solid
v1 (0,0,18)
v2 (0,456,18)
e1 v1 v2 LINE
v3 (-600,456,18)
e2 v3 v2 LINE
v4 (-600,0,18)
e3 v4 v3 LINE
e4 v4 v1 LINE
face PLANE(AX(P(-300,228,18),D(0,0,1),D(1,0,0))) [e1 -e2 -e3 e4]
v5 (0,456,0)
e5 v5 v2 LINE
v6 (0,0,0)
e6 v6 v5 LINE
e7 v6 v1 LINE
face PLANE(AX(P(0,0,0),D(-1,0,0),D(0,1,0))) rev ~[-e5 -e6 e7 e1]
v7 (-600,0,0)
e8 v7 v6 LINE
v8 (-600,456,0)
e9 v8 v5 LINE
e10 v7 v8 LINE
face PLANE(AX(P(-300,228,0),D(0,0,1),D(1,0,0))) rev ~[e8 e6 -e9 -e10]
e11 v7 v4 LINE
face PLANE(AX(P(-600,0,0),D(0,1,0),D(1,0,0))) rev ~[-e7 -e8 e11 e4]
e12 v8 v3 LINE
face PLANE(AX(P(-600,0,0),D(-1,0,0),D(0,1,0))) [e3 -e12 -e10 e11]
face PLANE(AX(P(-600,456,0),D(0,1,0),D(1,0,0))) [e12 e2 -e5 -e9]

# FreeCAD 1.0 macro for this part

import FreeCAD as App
import Part
import Sketcher
from FreeCAD import Vector
Q = App.Units.Quantity

doc = App.newDocument("Part")
body = doc.addObject("PartDesign::Body", "Body")

sketch1 = body.newObject("Sketcher::SketchObject", "Sketch")
sketch1.AttachmentSupport = (doc.getObject("XY_Plane"), [""])
sketch1.MapMode = "FlatFace"
sketch1.addGeometry([
    Part.LineSegment(Vector(-600, 456, 0), Vector(-600, 0, 0)),
    Part.LineSegment(Vector(-600, 0, 0), Vector(0, 0, 0)),
    Part.LineSegment(Vector(0, 0, 0), Vector(0, 456, 0)),
    Part.LineSegment(Vector(0, 456, 0), Vector(-600, 456, 0)),
], False)
sketch1.addConstraint([
    Sketcher.Constraint("Coincident", 0, 2, 1, 1),
    Sketcher.Constraint("Coincident", 1, 2, 2, 1),
    Sketcher.Constraint("Coincident", 2, 2, 3, 1),
    Sketcher.Constraint("Coincident", 3, 2, 0, 1),
    Sketcher.Constraint("Vertical", 0),
    Sketcher.Constraint("Horizontal", 1),
    Sketcher.Constraint("Vertical", 2),
    Sketcher.Constraint("Horizontal", 3),
    Sketcher.Constraint("Coincident", 1, 2, -1, 1),
    Sketcher.Constraint("DistanceX", 1, 1, 1, 2, Q("600 mm")),
    Sketcher.Constraint("DistanceY", 0, 2, 0, 1, Q("456 mm")),
])
pad1 = body.newObject("PartDesign::Pad", "Pad")
pad1.Profile = sketch1
pad1.Length = 18

doc.recompute()
